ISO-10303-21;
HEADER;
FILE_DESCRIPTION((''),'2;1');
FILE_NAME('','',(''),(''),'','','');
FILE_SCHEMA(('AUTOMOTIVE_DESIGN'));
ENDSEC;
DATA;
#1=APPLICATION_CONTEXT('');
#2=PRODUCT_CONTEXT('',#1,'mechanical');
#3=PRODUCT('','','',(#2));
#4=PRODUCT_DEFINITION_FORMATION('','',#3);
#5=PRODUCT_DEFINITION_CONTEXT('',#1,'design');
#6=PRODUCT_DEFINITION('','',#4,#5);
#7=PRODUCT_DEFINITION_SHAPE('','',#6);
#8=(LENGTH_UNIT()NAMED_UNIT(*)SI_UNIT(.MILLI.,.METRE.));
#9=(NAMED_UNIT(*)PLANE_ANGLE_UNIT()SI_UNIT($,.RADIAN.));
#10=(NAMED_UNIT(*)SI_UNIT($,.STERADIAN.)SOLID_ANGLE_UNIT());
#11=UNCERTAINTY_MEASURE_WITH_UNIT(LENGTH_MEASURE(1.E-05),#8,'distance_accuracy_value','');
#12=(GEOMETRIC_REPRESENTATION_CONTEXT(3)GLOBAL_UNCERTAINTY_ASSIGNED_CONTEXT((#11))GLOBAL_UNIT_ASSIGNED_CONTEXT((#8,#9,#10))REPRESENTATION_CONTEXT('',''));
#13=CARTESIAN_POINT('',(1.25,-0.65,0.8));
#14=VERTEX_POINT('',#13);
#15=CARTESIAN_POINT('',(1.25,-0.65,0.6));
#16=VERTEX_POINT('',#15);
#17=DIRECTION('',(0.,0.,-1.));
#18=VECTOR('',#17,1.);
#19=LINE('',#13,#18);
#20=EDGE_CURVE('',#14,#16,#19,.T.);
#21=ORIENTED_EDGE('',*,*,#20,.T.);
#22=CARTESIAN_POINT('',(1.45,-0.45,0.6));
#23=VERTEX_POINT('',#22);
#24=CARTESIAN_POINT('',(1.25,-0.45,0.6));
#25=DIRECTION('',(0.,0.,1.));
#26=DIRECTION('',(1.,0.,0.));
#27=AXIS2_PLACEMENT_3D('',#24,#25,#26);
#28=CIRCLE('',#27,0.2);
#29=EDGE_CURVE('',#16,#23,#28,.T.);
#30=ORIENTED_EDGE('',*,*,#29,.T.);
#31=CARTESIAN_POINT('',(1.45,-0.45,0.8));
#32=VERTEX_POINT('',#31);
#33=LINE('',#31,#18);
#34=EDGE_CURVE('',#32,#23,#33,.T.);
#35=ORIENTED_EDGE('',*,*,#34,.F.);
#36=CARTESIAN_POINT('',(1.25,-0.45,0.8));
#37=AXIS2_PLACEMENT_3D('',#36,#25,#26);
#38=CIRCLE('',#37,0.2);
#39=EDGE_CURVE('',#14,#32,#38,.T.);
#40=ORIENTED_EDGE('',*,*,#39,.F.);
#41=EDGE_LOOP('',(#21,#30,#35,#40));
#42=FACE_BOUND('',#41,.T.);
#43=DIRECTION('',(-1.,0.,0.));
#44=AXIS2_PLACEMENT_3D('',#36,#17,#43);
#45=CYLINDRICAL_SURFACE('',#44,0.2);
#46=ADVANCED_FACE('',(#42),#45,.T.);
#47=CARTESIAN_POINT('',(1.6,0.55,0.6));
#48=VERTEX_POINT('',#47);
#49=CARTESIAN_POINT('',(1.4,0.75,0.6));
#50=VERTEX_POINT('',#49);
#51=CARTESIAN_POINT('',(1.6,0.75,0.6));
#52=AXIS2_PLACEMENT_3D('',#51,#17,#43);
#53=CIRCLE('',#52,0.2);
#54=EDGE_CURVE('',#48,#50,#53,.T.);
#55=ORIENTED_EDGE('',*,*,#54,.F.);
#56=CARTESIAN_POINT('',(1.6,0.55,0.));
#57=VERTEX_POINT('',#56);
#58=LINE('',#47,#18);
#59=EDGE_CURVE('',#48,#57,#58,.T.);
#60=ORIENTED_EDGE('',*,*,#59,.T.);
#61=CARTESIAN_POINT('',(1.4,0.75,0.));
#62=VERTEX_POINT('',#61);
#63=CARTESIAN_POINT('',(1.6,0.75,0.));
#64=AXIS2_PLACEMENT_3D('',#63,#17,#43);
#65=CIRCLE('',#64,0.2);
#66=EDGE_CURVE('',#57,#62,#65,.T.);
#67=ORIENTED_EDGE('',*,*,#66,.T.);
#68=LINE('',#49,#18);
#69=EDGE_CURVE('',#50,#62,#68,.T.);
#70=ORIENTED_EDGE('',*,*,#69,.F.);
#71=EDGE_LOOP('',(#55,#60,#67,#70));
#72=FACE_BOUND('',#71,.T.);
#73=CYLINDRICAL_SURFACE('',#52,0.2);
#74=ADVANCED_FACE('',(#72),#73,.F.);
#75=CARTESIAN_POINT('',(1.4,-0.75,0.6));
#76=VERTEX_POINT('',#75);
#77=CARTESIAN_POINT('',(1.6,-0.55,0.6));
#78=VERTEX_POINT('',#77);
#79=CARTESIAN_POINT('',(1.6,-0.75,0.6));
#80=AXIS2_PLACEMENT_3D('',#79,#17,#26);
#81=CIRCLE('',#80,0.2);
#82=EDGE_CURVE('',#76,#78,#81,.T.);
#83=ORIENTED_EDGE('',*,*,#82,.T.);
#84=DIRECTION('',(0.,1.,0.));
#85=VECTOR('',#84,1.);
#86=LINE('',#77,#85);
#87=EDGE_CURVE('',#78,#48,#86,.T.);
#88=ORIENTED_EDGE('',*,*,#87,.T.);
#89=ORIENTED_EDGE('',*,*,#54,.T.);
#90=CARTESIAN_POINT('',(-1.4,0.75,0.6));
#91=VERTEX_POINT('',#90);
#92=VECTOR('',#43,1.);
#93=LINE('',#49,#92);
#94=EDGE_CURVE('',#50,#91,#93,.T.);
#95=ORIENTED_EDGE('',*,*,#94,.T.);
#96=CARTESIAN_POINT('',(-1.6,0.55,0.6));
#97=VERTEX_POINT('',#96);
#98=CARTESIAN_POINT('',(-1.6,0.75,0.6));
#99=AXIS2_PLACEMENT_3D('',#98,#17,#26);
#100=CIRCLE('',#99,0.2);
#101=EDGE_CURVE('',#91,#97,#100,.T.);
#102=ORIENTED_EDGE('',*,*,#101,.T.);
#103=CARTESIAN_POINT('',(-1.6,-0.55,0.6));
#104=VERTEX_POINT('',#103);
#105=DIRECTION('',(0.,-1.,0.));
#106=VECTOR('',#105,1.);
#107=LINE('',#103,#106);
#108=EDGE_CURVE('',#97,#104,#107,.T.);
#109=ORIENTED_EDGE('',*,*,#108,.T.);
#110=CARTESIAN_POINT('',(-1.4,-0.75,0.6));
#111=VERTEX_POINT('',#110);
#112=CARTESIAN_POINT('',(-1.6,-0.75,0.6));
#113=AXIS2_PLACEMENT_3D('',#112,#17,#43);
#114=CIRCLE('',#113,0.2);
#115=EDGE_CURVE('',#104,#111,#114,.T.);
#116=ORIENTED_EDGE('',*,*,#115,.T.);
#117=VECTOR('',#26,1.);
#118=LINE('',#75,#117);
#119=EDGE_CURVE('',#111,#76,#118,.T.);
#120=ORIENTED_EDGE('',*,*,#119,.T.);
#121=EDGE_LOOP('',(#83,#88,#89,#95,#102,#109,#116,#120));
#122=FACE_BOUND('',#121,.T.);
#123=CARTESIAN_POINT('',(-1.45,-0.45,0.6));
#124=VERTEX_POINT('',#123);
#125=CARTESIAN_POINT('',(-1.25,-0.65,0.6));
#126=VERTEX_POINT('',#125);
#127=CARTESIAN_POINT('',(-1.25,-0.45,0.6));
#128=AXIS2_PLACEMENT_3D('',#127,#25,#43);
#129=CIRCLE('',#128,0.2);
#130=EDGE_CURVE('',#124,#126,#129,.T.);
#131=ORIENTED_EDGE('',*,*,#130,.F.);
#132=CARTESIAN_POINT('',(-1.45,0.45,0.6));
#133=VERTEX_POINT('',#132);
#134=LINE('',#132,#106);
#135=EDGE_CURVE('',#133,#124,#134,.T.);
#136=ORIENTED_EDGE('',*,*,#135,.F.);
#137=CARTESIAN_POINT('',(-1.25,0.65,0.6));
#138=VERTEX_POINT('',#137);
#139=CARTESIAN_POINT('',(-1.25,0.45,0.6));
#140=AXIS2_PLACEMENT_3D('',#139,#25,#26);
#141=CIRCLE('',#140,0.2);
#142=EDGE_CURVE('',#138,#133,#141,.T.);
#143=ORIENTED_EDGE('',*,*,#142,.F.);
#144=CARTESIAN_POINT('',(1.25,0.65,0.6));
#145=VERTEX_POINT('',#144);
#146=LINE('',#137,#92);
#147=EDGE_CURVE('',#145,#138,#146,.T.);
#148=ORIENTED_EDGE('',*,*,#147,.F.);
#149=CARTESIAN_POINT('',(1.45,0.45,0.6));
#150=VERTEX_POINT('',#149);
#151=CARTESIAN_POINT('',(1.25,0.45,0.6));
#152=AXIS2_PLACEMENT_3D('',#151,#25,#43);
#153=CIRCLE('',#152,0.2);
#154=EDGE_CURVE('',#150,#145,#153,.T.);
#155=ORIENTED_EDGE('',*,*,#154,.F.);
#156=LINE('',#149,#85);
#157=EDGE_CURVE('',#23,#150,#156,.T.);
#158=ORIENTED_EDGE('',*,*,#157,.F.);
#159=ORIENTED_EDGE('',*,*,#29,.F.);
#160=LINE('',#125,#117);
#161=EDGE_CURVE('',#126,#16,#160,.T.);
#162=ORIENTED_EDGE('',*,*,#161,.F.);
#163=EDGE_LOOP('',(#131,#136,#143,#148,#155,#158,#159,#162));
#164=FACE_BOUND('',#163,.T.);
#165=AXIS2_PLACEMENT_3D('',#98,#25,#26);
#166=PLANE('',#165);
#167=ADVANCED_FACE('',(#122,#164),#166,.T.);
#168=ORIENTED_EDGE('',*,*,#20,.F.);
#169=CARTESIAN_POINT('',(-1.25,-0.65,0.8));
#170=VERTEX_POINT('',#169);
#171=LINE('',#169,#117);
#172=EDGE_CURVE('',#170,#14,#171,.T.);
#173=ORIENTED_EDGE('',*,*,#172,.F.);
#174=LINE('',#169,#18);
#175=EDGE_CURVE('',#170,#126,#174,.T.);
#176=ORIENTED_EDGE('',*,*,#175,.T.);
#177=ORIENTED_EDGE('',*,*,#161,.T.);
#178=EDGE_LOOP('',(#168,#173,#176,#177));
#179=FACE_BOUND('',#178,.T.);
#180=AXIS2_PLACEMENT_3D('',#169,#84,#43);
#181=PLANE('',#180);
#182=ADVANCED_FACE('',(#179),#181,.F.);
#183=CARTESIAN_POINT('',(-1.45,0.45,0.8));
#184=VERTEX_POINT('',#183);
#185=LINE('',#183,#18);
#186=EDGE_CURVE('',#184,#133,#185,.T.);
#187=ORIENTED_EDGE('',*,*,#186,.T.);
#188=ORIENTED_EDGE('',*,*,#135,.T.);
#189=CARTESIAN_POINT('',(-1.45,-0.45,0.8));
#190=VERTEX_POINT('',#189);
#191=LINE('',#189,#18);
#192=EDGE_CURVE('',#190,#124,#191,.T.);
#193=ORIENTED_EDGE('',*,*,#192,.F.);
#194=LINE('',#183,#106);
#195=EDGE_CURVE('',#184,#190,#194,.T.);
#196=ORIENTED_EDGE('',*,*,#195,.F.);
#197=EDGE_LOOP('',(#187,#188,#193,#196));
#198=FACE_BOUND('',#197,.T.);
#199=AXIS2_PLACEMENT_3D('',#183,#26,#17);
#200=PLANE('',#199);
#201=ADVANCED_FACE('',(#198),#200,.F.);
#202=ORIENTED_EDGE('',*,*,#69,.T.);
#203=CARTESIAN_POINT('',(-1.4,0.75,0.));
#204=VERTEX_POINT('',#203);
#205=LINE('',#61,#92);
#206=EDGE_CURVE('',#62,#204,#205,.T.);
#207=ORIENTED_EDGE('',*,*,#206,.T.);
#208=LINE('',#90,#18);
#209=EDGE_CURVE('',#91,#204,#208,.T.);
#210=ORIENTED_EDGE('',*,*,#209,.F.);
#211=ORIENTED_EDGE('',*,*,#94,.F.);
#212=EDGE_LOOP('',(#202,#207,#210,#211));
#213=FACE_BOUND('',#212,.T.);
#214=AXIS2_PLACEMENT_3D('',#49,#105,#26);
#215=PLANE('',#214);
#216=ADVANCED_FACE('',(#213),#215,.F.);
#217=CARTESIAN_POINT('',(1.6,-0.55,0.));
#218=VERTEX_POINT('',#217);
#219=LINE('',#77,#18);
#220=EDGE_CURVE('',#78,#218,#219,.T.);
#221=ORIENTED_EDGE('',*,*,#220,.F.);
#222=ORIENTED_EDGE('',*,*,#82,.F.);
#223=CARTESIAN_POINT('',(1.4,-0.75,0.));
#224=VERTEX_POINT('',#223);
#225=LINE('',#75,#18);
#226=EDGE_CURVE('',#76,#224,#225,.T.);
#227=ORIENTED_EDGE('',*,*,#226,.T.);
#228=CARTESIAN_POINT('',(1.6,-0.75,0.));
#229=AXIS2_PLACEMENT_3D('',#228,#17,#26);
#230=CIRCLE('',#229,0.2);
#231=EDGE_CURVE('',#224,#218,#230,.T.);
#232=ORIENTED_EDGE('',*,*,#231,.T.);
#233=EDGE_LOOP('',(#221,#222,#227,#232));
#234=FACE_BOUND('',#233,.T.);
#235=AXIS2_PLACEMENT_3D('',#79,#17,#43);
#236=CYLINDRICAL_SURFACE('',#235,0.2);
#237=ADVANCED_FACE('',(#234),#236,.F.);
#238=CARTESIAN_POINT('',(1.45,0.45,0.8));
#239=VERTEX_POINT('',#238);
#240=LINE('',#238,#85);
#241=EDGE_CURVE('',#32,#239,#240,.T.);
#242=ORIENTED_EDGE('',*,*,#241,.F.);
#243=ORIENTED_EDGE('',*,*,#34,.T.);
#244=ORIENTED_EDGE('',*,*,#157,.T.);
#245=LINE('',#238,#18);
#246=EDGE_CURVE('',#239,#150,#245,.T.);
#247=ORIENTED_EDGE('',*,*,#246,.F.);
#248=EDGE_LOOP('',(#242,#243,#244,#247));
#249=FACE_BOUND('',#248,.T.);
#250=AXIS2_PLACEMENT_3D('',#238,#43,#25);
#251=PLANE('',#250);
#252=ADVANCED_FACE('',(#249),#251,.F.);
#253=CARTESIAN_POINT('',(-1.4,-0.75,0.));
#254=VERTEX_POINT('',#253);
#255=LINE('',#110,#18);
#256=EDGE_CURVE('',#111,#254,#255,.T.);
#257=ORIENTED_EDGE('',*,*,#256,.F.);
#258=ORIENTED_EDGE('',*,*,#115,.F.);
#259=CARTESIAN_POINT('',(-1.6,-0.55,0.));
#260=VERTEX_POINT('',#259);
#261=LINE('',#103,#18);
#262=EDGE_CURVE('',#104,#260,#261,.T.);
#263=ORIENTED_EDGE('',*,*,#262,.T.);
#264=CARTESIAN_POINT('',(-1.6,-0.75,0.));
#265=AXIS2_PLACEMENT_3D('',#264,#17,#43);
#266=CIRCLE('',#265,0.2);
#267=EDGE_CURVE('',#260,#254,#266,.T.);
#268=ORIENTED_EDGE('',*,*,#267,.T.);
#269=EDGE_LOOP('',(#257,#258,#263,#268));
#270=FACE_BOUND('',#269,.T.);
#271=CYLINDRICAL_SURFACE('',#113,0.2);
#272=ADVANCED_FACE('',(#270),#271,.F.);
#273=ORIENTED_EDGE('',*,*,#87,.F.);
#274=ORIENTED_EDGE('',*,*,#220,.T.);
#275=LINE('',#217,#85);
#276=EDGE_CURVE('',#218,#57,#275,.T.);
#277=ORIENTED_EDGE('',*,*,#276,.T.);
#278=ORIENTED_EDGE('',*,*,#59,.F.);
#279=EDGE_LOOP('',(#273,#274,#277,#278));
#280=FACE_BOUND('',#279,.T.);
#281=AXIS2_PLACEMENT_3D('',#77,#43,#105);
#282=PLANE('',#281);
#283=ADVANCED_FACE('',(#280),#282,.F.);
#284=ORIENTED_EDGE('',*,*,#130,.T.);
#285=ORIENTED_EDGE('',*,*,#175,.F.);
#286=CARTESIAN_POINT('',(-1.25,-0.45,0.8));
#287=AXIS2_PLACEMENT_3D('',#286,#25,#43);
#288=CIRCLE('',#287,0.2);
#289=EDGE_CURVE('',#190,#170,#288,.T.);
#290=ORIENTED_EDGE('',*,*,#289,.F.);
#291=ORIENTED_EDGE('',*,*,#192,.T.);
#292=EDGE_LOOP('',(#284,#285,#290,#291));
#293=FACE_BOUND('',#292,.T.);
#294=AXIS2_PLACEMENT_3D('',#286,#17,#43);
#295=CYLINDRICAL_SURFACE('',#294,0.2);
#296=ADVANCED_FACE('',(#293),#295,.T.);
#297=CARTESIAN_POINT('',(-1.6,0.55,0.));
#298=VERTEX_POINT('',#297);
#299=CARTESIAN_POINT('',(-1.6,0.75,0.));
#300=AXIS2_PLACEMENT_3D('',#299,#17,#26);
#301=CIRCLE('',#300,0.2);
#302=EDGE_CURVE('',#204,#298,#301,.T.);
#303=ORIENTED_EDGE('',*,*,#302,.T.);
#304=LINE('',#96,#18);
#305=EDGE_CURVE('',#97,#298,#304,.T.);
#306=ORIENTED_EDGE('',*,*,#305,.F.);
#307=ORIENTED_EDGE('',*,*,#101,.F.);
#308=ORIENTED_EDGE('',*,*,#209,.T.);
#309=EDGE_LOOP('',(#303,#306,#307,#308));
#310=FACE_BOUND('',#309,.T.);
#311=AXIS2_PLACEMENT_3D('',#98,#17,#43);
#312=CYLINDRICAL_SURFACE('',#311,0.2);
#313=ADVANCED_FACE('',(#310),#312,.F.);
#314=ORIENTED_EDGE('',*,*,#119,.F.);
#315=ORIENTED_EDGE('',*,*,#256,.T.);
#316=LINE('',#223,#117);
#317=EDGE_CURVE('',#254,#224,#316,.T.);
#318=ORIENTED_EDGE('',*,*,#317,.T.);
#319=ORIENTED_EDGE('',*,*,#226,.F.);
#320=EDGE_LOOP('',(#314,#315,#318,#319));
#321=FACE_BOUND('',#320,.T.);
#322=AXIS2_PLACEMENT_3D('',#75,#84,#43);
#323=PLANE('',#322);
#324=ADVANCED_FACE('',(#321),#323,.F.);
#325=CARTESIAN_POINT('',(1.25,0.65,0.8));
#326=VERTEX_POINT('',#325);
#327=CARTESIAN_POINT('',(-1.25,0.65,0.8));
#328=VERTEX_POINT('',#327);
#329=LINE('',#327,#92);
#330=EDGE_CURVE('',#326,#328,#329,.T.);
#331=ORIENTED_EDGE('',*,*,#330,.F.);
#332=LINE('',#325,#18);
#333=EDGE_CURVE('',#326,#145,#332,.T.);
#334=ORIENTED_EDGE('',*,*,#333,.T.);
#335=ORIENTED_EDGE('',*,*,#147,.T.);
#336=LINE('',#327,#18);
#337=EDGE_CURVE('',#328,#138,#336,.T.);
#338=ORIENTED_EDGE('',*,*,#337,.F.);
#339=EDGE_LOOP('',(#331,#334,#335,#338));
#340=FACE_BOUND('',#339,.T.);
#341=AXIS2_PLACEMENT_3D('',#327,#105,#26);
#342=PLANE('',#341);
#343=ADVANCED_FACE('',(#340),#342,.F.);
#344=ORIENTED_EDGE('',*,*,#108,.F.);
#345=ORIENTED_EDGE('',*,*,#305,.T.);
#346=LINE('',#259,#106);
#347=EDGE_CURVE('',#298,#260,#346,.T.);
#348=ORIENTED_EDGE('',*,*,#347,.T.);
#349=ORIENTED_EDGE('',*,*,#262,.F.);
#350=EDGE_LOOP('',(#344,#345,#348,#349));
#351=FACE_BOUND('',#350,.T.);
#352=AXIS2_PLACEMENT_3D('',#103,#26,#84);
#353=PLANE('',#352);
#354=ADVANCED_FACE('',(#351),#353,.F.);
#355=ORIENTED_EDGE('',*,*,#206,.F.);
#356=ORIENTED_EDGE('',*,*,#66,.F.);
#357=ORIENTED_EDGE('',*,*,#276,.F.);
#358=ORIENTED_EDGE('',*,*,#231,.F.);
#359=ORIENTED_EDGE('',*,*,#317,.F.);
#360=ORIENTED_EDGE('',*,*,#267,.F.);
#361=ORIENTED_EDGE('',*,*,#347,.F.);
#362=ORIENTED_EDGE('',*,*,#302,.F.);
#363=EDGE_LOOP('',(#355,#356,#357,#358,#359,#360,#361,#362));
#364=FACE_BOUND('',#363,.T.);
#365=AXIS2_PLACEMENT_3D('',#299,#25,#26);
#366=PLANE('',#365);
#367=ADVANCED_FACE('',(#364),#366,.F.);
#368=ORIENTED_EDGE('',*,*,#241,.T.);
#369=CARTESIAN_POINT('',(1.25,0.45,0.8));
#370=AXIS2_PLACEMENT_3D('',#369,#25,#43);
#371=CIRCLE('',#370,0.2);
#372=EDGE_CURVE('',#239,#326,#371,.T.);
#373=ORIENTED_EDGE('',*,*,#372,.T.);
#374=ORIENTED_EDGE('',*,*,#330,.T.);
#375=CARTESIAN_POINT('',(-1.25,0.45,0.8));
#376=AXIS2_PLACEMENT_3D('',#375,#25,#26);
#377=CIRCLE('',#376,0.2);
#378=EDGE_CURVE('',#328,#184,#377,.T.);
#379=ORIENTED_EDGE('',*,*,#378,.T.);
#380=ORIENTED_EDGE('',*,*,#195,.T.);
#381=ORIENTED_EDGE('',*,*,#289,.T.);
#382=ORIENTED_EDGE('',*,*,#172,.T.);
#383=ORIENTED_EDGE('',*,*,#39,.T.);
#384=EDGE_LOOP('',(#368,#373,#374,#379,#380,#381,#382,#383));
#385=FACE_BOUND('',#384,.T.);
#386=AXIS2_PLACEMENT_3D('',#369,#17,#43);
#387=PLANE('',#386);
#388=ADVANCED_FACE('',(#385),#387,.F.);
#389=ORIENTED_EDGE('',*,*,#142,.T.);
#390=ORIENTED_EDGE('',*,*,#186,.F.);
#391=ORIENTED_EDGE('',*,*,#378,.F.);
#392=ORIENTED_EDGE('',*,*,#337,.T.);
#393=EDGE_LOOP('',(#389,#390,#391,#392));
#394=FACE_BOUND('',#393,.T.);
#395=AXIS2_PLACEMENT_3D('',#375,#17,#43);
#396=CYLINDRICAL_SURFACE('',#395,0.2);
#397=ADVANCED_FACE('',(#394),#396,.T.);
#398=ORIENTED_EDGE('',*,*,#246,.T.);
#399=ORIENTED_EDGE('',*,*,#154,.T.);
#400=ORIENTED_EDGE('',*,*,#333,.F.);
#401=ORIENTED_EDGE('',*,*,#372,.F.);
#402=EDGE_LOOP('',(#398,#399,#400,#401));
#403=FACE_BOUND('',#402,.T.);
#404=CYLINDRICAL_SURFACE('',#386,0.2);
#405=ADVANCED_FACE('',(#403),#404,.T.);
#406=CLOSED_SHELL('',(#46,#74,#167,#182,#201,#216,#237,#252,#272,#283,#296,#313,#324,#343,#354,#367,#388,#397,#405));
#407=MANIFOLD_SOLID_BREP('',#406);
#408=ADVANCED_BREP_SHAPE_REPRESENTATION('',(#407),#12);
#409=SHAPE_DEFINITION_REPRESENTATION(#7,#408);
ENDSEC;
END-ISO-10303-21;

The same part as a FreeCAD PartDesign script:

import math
import FreeCAD as App
import Part
import Sketcher
from FreeCAD import Vector
Q = App.Units.Quantity

doc = App.newDocument("Part")
body = doc.addObject("PartDesign::Body", "Body")

sketch1 = body.newObject("Sketcher::SketchObject", "Sketch")
sketch1.AttachmentSupport = (doc.getObject("XY_Plane"), [""])
sketch1.MapMode = "FlatFace"
sketch1.addGeometry(Part.LineSegment(Vector(-1.6, 0.55, 0), Vector(-1.6, -0.55, 0)), False)
sketch1.addGeometry(Part.ArcOfCircle(Part.Circle(Vector(-1.6, -0.75, 0), Vector(0, 0, 1), 0.2), math.radians(0), math.radians(90)), False)
sketch1.addGeometry(Part.LineSegment(Vector(-1.4, -0.75, 0), Vector(1.4, -0.75, 0)), False)
sketch1.addGeometry(Part.ArcOfCircle(Part.Circle(Vector(1.6, -0.75, 0), Vector(0, 0, 1), 0.2), math.radians(90), math.radians(180)), False)
sketch1.addGeometry(Part.LineSegment(Vector(1.6, -0.55, 0), Vector(1.6, 0.55, 0)), False)
sketch1.addGeometry(Part.ArcOfCircle(Part.Circle(Vector(1.6, 0.75, 0), Vector(0, 0, 1), 0.2), math.radians(-180), math.radians(-90)), False)
sketch1.addGeometry(Part.LineSegment(Vector(1.4, 0.75, 0), Vector(-1.4, 0.75, 0)), False)
sketch1.addGeometry(Part.ArcOfCircle(Part.Circle(Vector(-1.6, 0.75, 0), Vector(0, 0, 1), 0.2), math.radians(-90), math.radians(0)), False)
sketch1.addConstraint(Sketcher.Constraint("Coincident", 0, 2, 1, 2))
sketch1.addConstraint(Sketcher.Constraint("Coincident", 1, 1, 2, 1))
sketch1.addConstraint(Sketcher.Constraint("Coincident", 2, 2, 3, 2))
sketch1.addConstraint(Sketcher.Constraint("Coincident", 3, 1, 4, 1))
sketch1.addConstraint(Sketcher.Constraint("Coincident", 4, 2, 5, 2))
sketch1.addConstraint(Sketcher.Constraint("Coincident", 5, 1, 6, 1))
sketch1.addConstraint(Sketcher.Constraint("Coincident", 6, 2, 7, 2))
sketch1.addConstraint(Sketcher.Constraint("Coincident", 7, 1, 0, 1))
sketch1.addConstraint(Sketcher.Constraint("Vertical", 0))
sketch1.addConstraint(Sketcher.Constraint("Horizontal", 2))
sketch1.addConstraint(Sketcher.Constraint("Vertical", 4))
sketch1.addConstraint(Sketcher.Constraint("Horizontal", 6))
sketch1.addConstraint(Sketcher.Constraint("Equal", 1, 3))
sketch1.addConstraint(Sketcher.Constraint("Equal", 3, 5))
sketch1.addConstraint(Sketcher.Constraint("Equal", 5, 7))
sketch1.addConstraint(Sketcher.Constraint("Symmetric", 1, 3, 5, 3, -1, 1))
sketch1.addConstraint(Sketcher.Constraint("Symmetric", 3, 3, 7, 3, -1, 1))
sketch1.addConstraint(Sketcher.Constraint("Symmetric", 1, 3, 3, 3, -2))
sketch1.addConstraint(Sketcher.Constraint("Horizontal", 3, 3, 1, 1))
sketch1.addConstraint(Sketcher.Constraint("Horizontal", 7, 3, 5, 1))
sketch1.addConstraint(Sketcher.Constraint("Vertical", 7, 3, 0, 2))
sketch1.addConstraint(Sketcher.Constraint("Vertical", 5, 3, 3, 1))
sketch1.addConstraint(Sketcher.Constraint("Radius", 1, Q("0.2 mm")))
sketch1.addConstraint(Sketcher.Constraint("DistanceX", 2, 1, 2, 2, Q("2.8 mm")))
sketch1.addConstraint(Sketcher.Constraint("DistanceY", 0, 2, 0, 1, Q("1.1 mm")))
pad1 = body.newObject("PartDesign::Pad", "Pad")
pad1.Profile = sketch1
pad1.Length = 0.6

sketch2 = body.newObject("Sketcher::SketchObject", "Sketch001")
sketch2.AttachmentSupport = (doc.getObject("XY_Plane"), [""])
sketch2.MapMode = "FlatFace"
sketch2.AttachmentOffset = App.Placement(Vector(0, 0, 0.6), App.Rotation())
sketch2.addGeometry(Part.LineSegment(Vector(1.25, 0.65, 0), Vector(-1.25, 0.65, 0)), False)
sketch2.addGeometry(Part.ArcOfCircle(Part.Circle(Vector(-1.25, 0.45, 0), Vector(0, 0, 1), 0.2), math.radians(90), math.radians(180)), False)
sketch2.addGeometry(Part.LineSegment(Vector(-1.45, 0.45, 0), Vector(-1.45, -0.45, 0)), False)
sketch2.addGeometry(Part.ArcOfCircle(Part.Circle(Vector(-1.25, -0.45, 0), Vector(0, 0, 1), 0.2), math.radians(-180), math.radians(-90)), False)
sketch2.addGeometry(Part.LineSegment(Vector(-1.25, -0.65, 0), Vector(1.25, -0.65, 0)), False)
sketch2.addGeometry(Part.ArcOfCircle(Part.Circle(Vector(1.25, -0.45, 0), Vector(0, 0, 1), 0.2), math.radians(-90), math.radians(0)), False)
sketch2.addGeometry(Part.LineSegment(Vector(1.45, -0.45, 0), Vector(1.45, 0.45, 0)), False)
sketch2.addGeometry(Part.ArcOfCircle(Part.Circle(Vector(1.25, 0.45, 0), Vector(0, 0, 1), 0.2), math.radians(0), math.radians(90)), False)
sketch2.addConstraint(Sketcher.Constraint("Tangent", 0, 2, 1, 1))
sketch2.addConstraint(Sketcher.Constraint("Tangent", 1, 2, 2, 1))
sketch2.addConstraint(Sketcher.Constraint("Tangent", 2, 2, 3, 1))
sketch2.addConstraint(Sketcher.Constraint("Tangent", 3, 2, 4, 1))
sketch2.addConstraint(Sketcher.Constraint("Tangent", 4, 2, 5, 1))
sketch2.addConstraint(Sketcher.Constraint("Tangent", 5, 2, 6, 1))
sketch2.addConstraint(Sketcher.Constraint("Tangent", 6, 2, 7, 1))
sketch2.addConstraint(Sketcher.Constraint("Tangent", 7, 2, 0, 1))
sketch2.addConstraint(Sketcher.Constraint("Horizontal", 0))
sketch2.addConstraint(Sketcher.Constraint("Vertical", 2))
sketch2.addConstraint(Sketcher.Constraint("Horizontal", 4))
sketch2.addConstraint(Sketcher.Constraint("Vertical", 6))
sketch2.addConstraint(Sketcher.Constraint("Equal", 1, 3))
sketch2.addConstraint(Sketcher.Constraint("Equal", 3, 5))
sketch2.addConstraint(Sketcher.Constraint("Equal", 5, 7))
sketch2.addConstraint(Sketcher.Constraint("Symmetric", 1, 3, 5, 3, -1, 1))
sketch2.addConstraint(Sketcher.Constraint("Radius", 1, Q("0.2 mm")))
sketch2.addConstraint(Sketcher.Constraint("DistanceX", 0, 2, 0, 1, Q("2.5 mm")))
sketch2.addConstraint(Sketcher.Constraint("DistanceY", 2, 2, 2, 1, Q("0.9 mm")))
pad2 = body.newObject("PartDesign::Pad", "Pad001")
pad2.Profile = sketch2
pad2.Length = 0.2

doc.recompute()
